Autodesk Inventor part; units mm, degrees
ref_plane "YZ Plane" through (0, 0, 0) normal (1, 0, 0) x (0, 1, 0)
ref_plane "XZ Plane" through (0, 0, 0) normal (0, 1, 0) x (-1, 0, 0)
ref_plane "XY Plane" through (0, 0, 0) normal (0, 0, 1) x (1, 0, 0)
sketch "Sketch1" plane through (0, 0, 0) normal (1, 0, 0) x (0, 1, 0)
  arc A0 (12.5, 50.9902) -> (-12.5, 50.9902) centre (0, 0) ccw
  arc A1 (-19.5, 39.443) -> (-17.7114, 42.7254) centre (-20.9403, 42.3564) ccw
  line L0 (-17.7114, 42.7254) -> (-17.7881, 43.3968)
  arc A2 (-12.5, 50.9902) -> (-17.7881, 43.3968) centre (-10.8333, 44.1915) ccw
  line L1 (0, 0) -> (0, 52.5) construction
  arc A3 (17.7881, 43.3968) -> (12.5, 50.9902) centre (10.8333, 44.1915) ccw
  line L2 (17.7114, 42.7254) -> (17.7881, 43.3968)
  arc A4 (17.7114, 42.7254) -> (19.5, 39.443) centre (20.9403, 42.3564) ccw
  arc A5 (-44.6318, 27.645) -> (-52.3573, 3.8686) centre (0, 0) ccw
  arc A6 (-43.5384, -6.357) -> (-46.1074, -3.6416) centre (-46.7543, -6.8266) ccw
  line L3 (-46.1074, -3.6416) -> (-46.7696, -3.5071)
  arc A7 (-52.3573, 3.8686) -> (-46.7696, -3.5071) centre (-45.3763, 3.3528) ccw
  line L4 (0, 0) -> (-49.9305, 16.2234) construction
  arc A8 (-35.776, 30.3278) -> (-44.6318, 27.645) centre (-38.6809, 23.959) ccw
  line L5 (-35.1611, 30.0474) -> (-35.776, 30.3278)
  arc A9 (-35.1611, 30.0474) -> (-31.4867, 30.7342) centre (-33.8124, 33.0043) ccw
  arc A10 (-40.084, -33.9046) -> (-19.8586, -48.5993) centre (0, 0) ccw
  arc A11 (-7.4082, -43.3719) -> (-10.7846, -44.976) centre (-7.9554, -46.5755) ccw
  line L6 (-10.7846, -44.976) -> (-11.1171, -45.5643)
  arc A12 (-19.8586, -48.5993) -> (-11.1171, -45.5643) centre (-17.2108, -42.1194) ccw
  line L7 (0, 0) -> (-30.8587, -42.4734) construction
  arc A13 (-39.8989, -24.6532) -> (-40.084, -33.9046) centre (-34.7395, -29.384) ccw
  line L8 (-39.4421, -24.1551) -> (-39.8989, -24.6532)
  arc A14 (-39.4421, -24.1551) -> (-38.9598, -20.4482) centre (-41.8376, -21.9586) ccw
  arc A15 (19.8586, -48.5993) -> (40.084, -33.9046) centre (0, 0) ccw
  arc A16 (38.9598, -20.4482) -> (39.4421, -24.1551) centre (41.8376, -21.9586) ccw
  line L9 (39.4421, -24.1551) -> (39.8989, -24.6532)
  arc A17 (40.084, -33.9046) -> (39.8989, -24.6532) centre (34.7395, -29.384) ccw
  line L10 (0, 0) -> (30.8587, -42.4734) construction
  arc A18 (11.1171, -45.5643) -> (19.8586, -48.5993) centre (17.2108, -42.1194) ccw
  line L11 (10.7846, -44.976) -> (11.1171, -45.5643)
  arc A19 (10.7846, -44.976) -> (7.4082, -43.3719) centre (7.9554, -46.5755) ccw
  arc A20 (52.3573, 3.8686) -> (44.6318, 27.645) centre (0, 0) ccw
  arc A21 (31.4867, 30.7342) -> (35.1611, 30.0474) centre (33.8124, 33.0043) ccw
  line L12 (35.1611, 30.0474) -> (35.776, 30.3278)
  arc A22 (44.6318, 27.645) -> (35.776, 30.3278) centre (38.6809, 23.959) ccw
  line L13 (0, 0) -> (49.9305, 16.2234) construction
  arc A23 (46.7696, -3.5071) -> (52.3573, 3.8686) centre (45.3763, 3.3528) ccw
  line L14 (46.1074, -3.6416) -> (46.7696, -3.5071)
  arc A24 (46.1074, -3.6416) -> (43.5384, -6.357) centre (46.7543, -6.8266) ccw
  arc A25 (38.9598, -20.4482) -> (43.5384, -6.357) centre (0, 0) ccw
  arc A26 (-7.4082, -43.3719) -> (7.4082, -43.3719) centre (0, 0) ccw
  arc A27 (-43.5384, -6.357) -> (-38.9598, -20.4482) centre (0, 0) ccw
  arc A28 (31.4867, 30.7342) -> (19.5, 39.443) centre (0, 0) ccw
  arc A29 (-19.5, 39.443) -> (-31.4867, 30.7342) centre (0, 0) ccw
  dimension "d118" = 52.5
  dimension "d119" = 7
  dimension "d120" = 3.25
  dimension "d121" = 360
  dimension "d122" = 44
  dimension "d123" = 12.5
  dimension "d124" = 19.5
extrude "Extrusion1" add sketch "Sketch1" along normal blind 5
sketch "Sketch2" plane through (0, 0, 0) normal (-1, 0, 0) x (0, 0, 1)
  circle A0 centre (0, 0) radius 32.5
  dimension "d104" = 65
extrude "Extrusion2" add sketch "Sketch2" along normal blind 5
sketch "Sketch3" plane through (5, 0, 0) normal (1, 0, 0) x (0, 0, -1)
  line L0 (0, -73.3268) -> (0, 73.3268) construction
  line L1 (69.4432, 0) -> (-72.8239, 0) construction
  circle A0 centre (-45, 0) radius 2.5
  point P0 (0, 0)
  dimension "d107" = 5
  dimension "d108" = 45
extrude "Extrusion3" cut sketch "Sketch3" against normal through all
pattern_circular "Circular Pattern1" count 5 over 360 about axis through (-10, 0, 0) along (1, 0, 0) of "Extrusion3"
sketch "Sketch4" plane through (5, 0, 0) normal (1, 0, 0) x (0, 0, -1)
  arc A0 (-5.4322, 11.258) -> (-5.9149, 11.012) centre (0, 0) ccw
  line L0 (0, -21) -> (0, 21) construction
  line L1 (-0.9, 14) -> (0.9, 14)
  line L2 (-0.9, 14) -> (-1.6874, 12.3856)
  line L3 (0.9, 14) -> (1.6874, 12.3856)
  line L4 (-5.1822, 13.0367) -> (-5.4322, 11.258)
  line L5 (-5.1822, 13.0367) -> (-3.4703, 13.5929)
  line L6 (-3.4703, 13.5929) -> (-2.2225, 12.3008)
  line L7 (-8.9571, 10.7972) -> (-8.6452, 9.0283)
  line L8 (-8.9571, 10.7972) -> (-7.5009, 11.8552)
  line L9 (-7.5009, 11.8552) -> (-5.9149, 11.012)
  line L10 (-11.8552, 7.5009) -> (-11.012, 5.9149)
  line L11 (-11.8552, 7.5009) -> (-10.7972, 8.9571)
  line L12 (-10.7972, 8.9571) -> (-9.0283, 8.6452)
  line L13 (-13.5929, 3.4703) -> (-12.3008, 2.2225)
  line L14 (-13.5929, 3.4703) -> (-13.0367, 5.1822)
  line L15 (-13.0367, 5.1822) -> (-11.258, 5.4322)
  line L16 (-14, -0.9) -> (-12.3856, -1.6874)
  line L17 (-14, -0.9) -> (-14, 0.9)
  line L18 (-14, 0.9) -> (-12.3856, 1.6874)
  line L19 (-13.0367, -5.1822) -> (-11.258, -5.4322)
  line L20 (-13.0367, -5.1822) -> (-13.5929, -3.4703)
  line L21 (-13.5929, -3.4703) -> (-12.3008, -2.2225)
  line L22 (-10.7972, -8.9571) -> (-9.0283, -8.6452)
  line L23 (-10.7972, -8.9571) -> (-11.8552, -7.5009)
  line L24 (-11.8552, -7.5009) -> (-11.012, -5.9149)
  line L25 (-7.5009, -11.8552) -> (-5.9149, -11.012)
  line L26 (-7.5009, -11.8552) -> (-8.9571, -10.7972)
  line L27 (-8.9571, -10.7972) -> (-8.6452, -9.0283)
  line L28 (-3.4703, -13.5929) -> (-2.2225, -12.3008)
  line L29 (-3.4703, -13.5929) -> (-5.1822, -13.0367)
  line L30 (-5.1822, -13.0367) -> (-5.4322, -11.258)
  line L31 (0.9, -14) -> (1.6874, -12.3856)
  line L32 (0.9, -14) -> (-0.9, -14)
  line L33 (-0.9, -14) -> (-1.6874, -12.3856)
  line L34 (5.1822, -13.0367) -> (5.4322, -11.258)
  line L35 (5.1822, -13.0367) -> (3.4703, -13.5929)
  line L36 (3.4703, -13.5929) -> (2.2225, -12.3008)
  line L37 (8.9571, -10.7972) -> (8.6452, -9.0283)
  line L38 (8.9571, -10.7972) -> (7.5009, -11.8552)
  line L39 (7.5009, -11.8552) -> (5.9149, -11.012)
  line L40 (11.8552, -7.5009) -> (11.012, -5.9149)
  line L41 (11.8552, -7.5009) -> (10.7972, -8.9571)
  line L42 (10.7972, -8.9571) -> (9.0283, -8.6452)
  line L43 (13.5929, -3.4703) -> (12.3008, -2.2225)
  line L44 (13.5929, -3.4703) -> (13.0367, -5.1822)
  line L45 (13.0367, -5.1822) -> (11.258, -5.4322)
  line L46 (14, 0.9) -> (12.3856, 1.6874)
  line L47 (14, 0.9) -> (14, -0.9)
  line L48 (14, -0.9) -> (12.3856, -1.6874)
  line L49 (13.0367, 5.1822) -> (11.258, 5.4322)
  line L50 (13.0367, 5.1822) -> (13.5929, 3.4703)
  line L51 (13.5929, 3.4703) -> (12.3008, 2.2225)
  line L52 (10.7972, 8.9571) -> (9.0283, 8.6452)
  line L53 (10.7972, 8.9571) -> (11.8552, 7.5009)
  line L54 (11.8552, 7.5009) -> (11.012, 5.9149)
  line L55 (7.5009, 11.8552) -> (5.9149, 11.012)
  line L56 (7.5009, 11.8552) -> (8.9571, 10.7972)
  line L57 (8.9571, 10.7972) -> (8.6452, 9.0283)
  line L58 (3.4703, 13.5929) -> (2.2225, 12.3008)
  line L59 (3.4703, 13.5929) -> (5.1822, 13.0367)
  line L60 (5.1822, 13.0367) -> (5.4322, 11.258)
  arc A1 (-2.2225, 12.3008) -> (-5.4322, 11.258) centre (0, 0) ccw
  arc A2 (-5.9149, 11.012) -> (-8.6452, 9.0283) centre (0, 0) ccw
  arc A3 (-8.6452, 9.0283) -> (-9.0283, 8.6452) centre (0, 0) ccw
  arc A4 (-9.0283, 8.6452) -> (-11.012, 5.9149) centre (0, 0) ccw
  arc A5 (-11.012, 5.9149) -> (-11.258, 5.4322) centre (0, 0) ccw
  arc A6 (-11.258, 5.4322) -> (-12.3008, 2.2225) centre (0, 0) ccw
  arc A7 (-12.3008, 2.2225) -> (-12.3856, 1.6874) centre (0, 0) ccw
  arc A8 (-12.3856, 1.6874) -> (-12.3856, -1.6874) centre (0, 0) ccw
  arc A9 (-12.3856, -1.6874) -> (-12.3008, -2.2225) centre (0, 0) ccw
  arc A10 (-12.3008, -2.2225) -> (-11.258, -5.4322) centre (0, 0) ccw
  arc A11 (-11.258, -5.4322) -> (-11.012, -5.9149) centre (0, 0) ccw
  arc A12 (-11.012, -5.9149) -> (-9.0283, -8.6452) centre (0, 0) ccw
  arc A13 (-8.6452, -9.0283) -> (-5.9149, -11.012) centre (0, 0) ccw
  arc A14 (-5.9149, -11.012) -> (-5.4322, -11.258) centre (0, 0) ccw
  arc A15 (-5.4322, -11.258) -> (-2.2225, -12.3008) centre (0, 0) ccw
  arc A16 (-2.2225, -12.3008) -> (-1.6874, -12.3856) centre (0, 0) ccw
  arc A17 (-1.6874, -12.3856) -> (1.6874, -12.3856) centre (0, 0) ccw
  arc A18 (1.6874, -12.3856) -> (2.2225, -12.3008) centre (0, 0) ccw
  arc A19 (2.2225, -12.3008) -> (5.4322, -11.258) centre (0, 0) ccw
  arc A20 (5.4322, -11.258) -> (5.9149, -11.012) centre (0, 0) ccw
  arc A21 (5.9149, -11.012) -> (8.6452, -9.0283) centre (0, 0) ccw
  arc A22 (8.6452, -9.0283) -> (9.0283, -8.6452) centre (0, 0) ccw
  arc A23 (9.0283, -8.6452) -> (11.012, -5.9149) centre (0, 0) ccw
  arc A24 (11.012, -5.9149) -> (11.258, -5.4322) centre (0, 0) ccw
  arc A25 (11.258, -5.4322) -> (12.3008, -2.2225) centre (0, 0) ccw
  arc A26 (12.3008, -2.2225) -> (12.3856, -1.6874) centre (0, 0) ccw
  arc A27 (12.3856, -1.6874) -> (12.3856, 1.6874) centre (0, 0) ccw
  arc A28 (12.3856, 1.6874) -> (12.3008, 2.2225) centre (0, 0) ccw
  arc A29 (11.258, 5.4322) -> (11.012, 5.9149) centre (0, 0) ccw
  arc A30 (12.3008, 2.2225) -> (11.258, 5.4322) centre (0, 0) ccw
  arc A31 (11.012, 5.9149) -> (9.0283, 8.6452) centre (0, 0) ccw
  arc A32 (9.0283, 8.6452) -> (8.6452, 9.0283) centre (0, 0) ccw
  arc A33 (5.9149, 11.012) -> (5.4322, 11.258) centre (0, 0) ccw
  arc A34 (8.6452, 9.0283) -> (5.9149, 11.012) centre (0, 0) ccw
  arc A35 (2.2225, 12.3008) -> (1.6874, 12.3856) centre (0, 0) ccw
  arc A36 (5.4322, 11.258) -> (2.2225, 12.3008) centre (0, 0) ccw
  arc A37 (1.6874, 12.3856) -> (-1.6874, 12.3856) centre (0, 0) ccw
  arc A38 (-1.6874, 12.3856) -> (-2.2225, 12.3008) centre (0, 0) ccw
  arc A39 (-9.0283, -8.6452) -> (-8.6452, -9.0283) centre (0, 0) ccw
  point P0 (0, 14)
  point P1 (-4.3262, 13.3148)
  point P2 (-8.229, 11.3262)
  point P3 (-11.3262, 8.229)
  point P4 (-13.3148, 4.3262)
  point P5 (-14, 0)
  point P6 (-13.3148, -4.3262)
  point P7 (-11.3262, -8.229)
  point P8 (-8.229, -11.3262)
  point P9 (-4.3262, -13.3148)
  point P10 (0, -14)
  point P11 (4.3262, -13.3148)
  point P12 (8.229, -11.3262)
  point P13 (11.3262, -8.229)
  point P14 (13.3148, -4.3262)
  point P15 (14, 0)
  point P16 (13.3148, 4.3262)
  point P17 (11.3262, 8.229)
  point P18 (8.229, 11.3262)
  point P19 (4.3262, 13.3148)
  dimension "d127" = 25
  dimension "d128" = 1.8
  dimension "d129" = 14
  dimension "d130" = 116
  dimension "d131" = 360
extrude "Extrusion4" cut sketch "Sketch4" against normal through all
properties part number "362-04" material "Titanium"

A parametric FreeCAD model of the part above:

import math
import FreeCAD as App
import Part
import Sketcher
Q = App.Units.Quantity

doc = App.newDocument("Part")
params = doc.addObject("Spreadsheet::Sheet", "Params")
for row, (alias, value) in enumerate([
    ("sketch1_radius", "7 mm"),
    ("sketch1_radius2", "44 mm"),
    ("sketch1_radius3", "52.5 mm"),
    ("sketch1_radius4", "3.25 mm"),
    ("pad1_length", "5 mm"),
    ("sketch2_diameter", "65 mm"),
    ("pad2_length", "5 mm"),
    ("sketch3_diameter", "5 mm"),
    ("sketch4_radius", "12.5 mm"),
    ("sketch4_width", "1.8 mm"),
    ("sketch4_length", "1.8 mm"),
], start=1):
    params.set(f"A{row}", alias)
    params.set(f"B{row}", "=" + value)
    params.setAlias(f"B{row}", alias)

body = doc.addObject("PartDesign::Body", "Body")

# Sketch on YZ plane
sketch1 = body.newObject("Sketcher::SketchObject", "Sketch")
sketch1.AttachmentSupport = (doc.getObject("YZ_Plane"), [""])
sketch1.MapMode = "FlatFace"
sketch1.addGeometry([
    Part.ArcOfCircle(Part.Circle(App.Vector(10.8333, 44.1915, 0), App.Vector(0, 0, 1), 7.000057), math.radians(-6.51871), math.radians(76.225602)),  # 0
    Part.ArcOfCircle(Part.Circle(App.Vector(0, 0, 0), App.Vector(0, 0, 1), 52.500005), math.radians(76.225854), math.radians(103.774146)),  # 1
    Part.ArcOfCircle(Part.Circle(App.Vector(-10.8333, 44.1915, 0), App.Vector(0, 0, 1), 7.000015), math.radians(103.774398), math.radians(186.51871)),  # 2
    Part.LineSegment(App.Vector(-17.7881, 43.3968, 0), App.Vector(-17.7114, 42.7254, 0)),  # 3
    Part.ArcOfCircle(Part.Circle(App.Vector(-20.9403, 42.3564, 0), App.Vector(0, 0, 1), 3.249979), math.radians(-63.693551), math.radians(6.519501)),  # 4
    Part.ArcOfCircle(Part.Circle(App.Vector(0.000636, -0.001052, 0), App.Vector(0, 0, 1), 44.001228), math.radians(116.307204), math.radians(135.6925)),  # 5
    Part.ArcOfCircle(Part.Circle(App.Vector(-33.8124, 33.0043, 0), App.Vector(0, 0, 1), 3.249961), math.radians(-114.518658), math.radians(-44.306869)),  # 6
    Part.LineSegment(App.Vector(-35.1611, 30.0474, 0), App.Vector(-35.776, 30.3278, 0)),  # 7
    Part.ArcOfCircle(Part.Circle(App.Vector(-38.6809, 23.959, 0), App.Vector(0, 0, 1), 7.000004), math.radians(65.481598), math.radians(148.225839)),  # 8
    Part.ArcOfCircle(Part.Circle(App.Vector(0.001412, -0.000655, 0), App.Vector(0, 0, 1), 52.501484), math.radians(148.226071), math.radians(175.773583)),  # 9
    Part.ArcOfCircle(Part.Circle(App.Vector(-45.3763, 3.3528, 0), App.Vector(0, 0, 1), 7.000029), math.radians(175.774307), math.radians(258.518949)),  # 10
    Part.LineSegment(App.Vector(-46.7696, -3.5071, 0), App.Vector(-46.1074, -3.6416, 0)),  # 11
    Part.ArcOfCircle(Part.Circle(App.Vector(-46.7543, -6.8266, 0), App.Vector(0, 0, 1), 3.250006), math.radians(8.307866), math.radians(78.518926)),  # 12
    Part.ArcOfCircle(Part.Circle(App.Vector(-0.003432, -0.000802, 0), App.Vector(0, 0, 1), 43.99653), math.radians(-171.693385), math.radians(-152.305941)),  # 13
    Part.ArcOfCircle(Part.Circle(App.Vector(-41.8376, -21.9586, 0), App.Vector(0, 0, 1), 3.250082), math.radians(-42.518569), math.radians(27.692527)),  # 14
    Part.LineSegment(App.Vector(-39.4421, -24.1551, 0), App.Vector(-39.8989, -24.6532, 0)),  # 15
    Part.ArcOfCircle(Part.Circle(App.Vector(-34.7395, -29.384, 0), App.Vector(0, 0, 1), 6.999991), math.radians(137.481407), math.radians(220.225928)),  # 16
    Part.ArcOfCircle(Part.Circle(App.Vector(0.000794, 0.000855, 0), App.Vector(0, 0, 1), 52.501149), math.radians(-139.774012), math.radians(-112.22631)),  # 17
    Part.ArcOfCircle(Part.Circle(App.Vector(-17.2108, -42.1194, 0), App.Vector(0, 0, 1), 6.999996), math.radians(-112.22578), math.radians(-29.480412)),  # 18
    Part.LineSegment(App.Vector(-11.1171, -45.5643, 0), App.Vector(-10.7846, -44.976, 0)),  # 19
    Part.ArcOfCircle(Part.Circle(App.Vector(-7.9554, -46.5755, 0), App.Vector(0, 0, 1), 3.249997), math.radians(80.306975), math.radians(150.518172)),  # 20
    Part.ArcOfCircle(Part.Circle(App.Vector(0, 0, 0), App.Vector(0, 0, 1), 44.000036), math.radians(-99.692947), math.radians(-80.307053)),  # 21
    Part.ArcOfCircle(Part.Circle(App.Vector(7.9554, -46.5755, 0), App.Vector(0, 0, 1), 3.250042), math.radians(29.481828), math.radians(99.693025)),  # 22
    Part.LineSegment(App.Vector(10.7846, -44.976, 0), App.Vector(11.1171, -45.5643, 0)),  # 23
    Part.ArcOfCircle(Part.Circle(App.Vector(17.2108, -42.1194, 0), App.Vector(0, 0, 1), 7.000037), math.radians(-150.519588), math.radians(-67.77422)),  # 24
    Part.ArcOfCircle(Part.Circle(App.Vector(0.000568, -0.00102, 0), App.Vector(0, 0, 1), 52.498898), math.radians(-67.774292), math.radians(-40.225386)),  # 25
    Part.ArcOfCircle(Part.Circle(App.Vector(34.7395, -29.384, 0), App.Vector(0, 0, 1), 6.999965), math.radians(-40.225928), math.radians(42.518593)),  # 26
    Part.LineSegment(App.Vector(39.8989, -24.6532, 0), App.Vector(39.4421, -24.1551, 0)),  # 27
    Part.ArcOfCircle(Part.Circle(App.Vector(41.8376, -21.9586, 0), App.Vector(0, 0, 1), 3.250083), math.radians(152.307473), math.radians(222.518569)),  # 28
    Part.ArcOfCircle(Part.Circle(App.Vector(-0.003248, 0.001369, 0), App.Vector(0, 0, 1), 44.003454), math.radians(-27.692519), math.radians(-8.308155)),  # 29
    Part.ArcOfCircle(Part.Circle(App.Vector(46.7543, -6.8266, 0), App.Vector(0, 0, 1), 3.250031), math.radians(101.481074), math.radians(171.692134)),  # 30
    Part.LineSegment(App.Vector(46.1074, -3.6416, 0), App.Vector(46.7696, -3.5071, 0)),  # 31
    Part.ArcOfCircle(Part.Circle(App.Vector(45.3763, 3.3528, 0), App.Vector(0, 0, 1), 6.999965), math.radians(-78.518949), math.radians(4.225693)),  # 32
    Part.ArcOfCircle(Part.Circle(App.Vector(0.001527, 0.0003, 0), App.Vector(0, 0, 1), 52.498483), math.radians(4.225614), math.radians(31.774732)),  # 33
    Part.ArcOfCircle(Part.Circle(App.Vector(38.6809, 23.959, 0), App.Vector(0, 0, 1), 6.999986), math.radians(31.774161), math.radians(114.518402)),  # 34
    Part.LineSegment(App.Vector(35.776, 30.3278, 0), App.Vector(35.1611, 30.0474, 0)),  # 35
    Part.ArcOfCircle(Part.Circle(App.Vector(33.8124, 33.0043, 0), App.Vector(0, 0, 1), 3.249959), math.radians(-135.693131), math.radians(-65.481342)),  # 36
    Part.ArcOfCircle(Part.Circle(App.Vector(0.000804, 0.00093, 0), App.Vector(0, 0, 1), 43.998813), math.radians(44.306963), math.radians(63.693333)),  # 37
    Part.ArcOfCircle(Part.Circle(App.Vector(20.9403, 42.3564, 0), App.Vector(0, 0, 1), 3.249916), math.radians(173.480499), math.radians(243.693551)),  # 38
    Part.LineSegment(App.Vector(17.7114, 42.7254, 0), App.Vector(17.7881, 43.3968, 0)),  # 39
], False)
sketch1.addConstraint([
    Sketcher.Constraint("Tangent", 0, 2, 1, 1),
    Sketcher.Constraint("Tangent", 1, 2, 2, 1),
    Sketcher.Constraint("Tangent", 2, 2, 3, 1),
    Sketcher.Constraint("Tangent", 3, 2, 4, 2),
    Sketcher.Constraint("Tangent", 4, 1, 5, 1),
    Sketcher.Constraint("Tangent", 5, 2, 6, 2),
    Sketcher.Constraint("Tangent", 6, 1, 7, 1),
    Sketcher.Constraint("Tangent", 7, 2, 8, 1),
    Sketcher.Constraint("Tangent", 8, 2, 9, 1),
    Sketcher.Constraint("Tangent", 9, 2, 10, 1),
    Sketcher.Constraint("Tangent", 10, 2, 11, 1),
    Sketcher.Constraint("Tangent", 11, 2, 12, 2),
    Sketcher.Constraint("Tangent", 12, 1, 13, 1),
    Sketcher.Constraint("Tangent", 13, 2, 14, 2),
    Sketcher.Constraint("Tangent", 14, 1, 15, 1),
    Sketcher.Constraint("Tangent", 15, 2, 16, 1),
    Sketcher.Constraint("Tangent", 16, 2, 17, 1),
    Sketcher.Constraint("Tangent", 17, 2, 18, 1),
    Sketcher.Constraint("Tangent", 18, 2, 19, 1),
    Sketcher.Constraint("Tangent", 19, 2, 20, 2),
    Sketcher.Constraint("Tangent", 20, 1, 21, 1),
    Sketcher.Constraint("Tangent", 21, 2, 22, 2),
    Sketcher.Constraint("Tangent", 22, 1, 23, 1),
    Sketcher.Constraint("Tangent", 23, 2, 24, 1),
    Sketcher.Constraint("Tangent", 24, 2, 25, 1),
    Sketcher.Constraint("Tangent", 25, 2, 26, 1),
    Sketcher.Constraint("Tangent", 26, 2, 27, 1),
    Sketcher.Constraint("Tangent", 27, 2, 28, 2),
    Sketcher.Constraint("Tangent", 28, 1, 29, 1),
    Sketcher.Constraint("Tangent", 29, 2, 30, 2),
    Sketcher.Constraint("Tangent", 30, 1, 31, 1),
    Sketcher.Constraint("Tangent", 31, 2, 32, 1),
    Sketcher.Constraint("Tangent", 32, 2, 33, 1),
    Sketcher.Constraint("Tangent", 33, 2, 34, 1),
    Sketcher.Constraint("Tangent", 34, 2, 35, 1),
    Sketcher.Constraint("Tangent", 35, 2, 36, 2),
    Sketcher.Constraint("Tangent", 36, 1, 37, 1),
    Sketcher.Constraint("Tangent", 37, 2, 38, 2),
    Sketcher.Constraint("Tangent", 38, 1, 39, 1),
    Sketcher.Constraint("Tangent", 39, 2, 0, 1),
    Sketcher.Constraint("Coincident", 1, 3, -1, 1),
    Sketcher.Constraint("Coincident", 21, 3, -1, 1),
    Sketcher.Constraint("Coincident", 25, 3, 5, 3),
    Sketcher.Constraint("Coincident", 37, 3, 17, 3),
    Sketcher.Constraint("Equal", 0, 2),
    Sketcher.Constraint("Equal", 4, 6),
    Sketcher.Constraint("Equal", 2, 8),
    Sketcher.Constraint("Equal", 8, 10),
    Sketcher.Constraint("Equal", 6, 12),
    Sketcher.Constraint("Equal", 12, 14),
    Sketcher.Constraint("Equal", 10, 16),
    Sketcher.Constraint("Equal", 16, 18),
    Sketcher.Constraint("Equal", 14, 20),
    Sketcher.Constraint("Equal", 20, 22),
    Sketcher.Constraint("Equal", 18, 24),
    Sketcher.Constraint("Equal", 24, 26),
    Sketcher.Constraint("Equal", 22, 28),
    Sketcher.Constraint("Equal", 28, 30),
    Sketcher.Constraint("Equal", 26, 32),
    Sketcher.Constraint("Equal", 32, 34),
    Sketcher.Constraint("Equal", 30, 36),
    Sketcher.Constraint("Equal", 36, 38),
    Sketcher.Constraint("Symmetric", 18, 3, 24, 3, -2),
    Sketcher.Constraint("Symmetric", 16, 3, 26, 3, -2),
    Sketcher.Constraint("Symmetric", 14, 3, 28, 3, -2),
    Sketcher.Constraint("Symmetric", 12, 3, 30, 3, -2),
    Sketcher.Constraint("Symmetric", 10, 3, 32, 3, -2),
    Sketcher.Constraint("Symmetric", 8, 3, 34, 3, -2),
    Sketcher.Constraint("Symmetric", 6, 3, 36, 3, -2),
    Sketcher.Constraint("Symmetric", 3, 2, 38, 1, -2),
    Sketcher.Constraint("Symmetric", 5, 3, 17, 3, -1),
    Sketcher.Constraint("Symmetric", 9, 3, 33, 3, -1),
    Sketcher.Constraint("Horizontal", 9, 3, 13, 3),
    Sketcher.Constraint("Horizontal", 20, 3, 22, 3),
    Sketcher.Constraint("Vertical", 13, 3, 29, 3),
    Sketcher.Constraint("Equal", 3, 7),
    Sketcher.Constraint("Equal", 7, 11),
    Sketcher.Constraint("Equal", 11, 15),
    Sketcher.Constraint("Equal", 15, 19),
    Sketcher.Constraint("Radius", 0, 7.0),
    Sketcher.Constraint("Radius", 21, 44.0),
    Sketcher.Constraint("Radius", 1, 52.5),
    Sketcher.Constraint("Radius", 4, 3.25),
    Sketcher.Constraint("DistanceX", -1, 1, 0, 2, 12.5),
    Sketcher.Constraint("DistanceX", 4, 1, -1, 1, 19.5),
    Sketcher.Constraint("Radius", 25, 52.499),
    Sketcher.Constraint("Radius", 5, 44.0012),
    Sketcher.Constraint("Radius", 9, 52.5015),
    Sketcher.Constraint("Radius", 13, 43.9965),
    Sketcher.Constraint("Radius", 17, 52.5011),
    Sketcher.Constraint("Radius", 29, 44.0035),
    Sketcher.Constraint("Radius", 33, 52.4985),
    Sketcher.Constraint("DistanceX", 8, 3, -1, 1, 38.681),
    Sketcher.Constraint("DistanceY", 16, 3, -1, 1, 29.384),
    Sketcher.Constraint("DistanceY", 12, 1, -1, 1, 6.357),
    Sketcher.Constraint("DistanceY", 19, 2, -1, 1, 44.976),
])
sketch1.setExpression("Constraints[79]", "Params.sketch1_radius")
sketch1.setExpression("Constraints[80]", "Params.sketch1_radius2")
sketch1.setExpression("Constraints[81]", "Params.sketch1_radius3")
sketch1.setExpression("Constraints[82]", "Params.sketch1_radius4")
pad1 = body.newObject("PartDesign::Pad", "Pad")
pad1.Profile = sketch1
pad1.setExpression("Length", "Params.pad1_length")

# Sketch on YZ plane
sketch2 = body.newObject("Sketcher::SketchObject", "Sketch001")
sketch2.AttachmentSupport = (doc.getObject("YZ_Plane"), [""])
sketch2.MapMode = "FlatFace"
sketch2.addGeometry(Part.Circle(App.Vector(0, 0, 0), App.Vector(0, 0, 1), 32), False)
sketch2.addConstraint([
    Sketcher.Constraint("Coincident", 0, 3, -1, 1),
    Sketcher.Constraint("Diameter", 0, 65.0),
])
sketch2.setExpression("Constraints[1]", "Params.sketch2_diameter")
pad2 = body.newObject("PartDesign::Pad", "Pad001")
pad2.Profile = sketch2
pad2.setExpression("Length", "Params.pad2_length")
pad2.Reversed = True

# Sketch on YZ plane
sketch3 = body.newObject("Sketcher::SketchObject", "Sketch002")
sketch3.AttachmentSupport = (doc.getObject("YZ_Plane"), [""])
sketch3.MapMode = "FlatFace"
sketch3.AttachmentOffset = App.Placement(App.Vector(0, 0, 5), App.Rotation())
sketch3.addGeometry(Part.Circle(App.Vector(0, 45, 0), App.Vector(0, 0, 1), 2.5), False)
sketch3.addConstraint([
    Sketcher.Constraint("PointOnObject", 0, 3, -2),
    Sketcher.Constraint("Diameter", 0, 5.0),
    Sketcher.Constraint("DistanceY", -1, 1, 0, 3, 45.0),
])
sketch3.setExpression("Constraints[1]", "Params.sketch3_diameter")
pocket1 = body.newObject("PartDesign::Pocket", "Pocket")
pocket1.Profile = sketch3
pocket1.Type = "ThroughAll"
doc.recompute()

polarpattern = body.newObject("PartDesign::PolarPattern", "PolarPattern")
polarpattern.Originals = [pocket1]
polarpattern.Axis = (doc.getObject("X_Axis"), [""])
polarpattern.Angle = 360
polarpattern.Occurrences = 5
body.Tip = polarpattern

# Sketch on YZ plane
sketch4 = body.newObject("Sketcher::SketchObject", "Sketch003")
sketch4.AttachmentSupport = (doc.getObject("YZ_Plane"), [""])
sketch4.MapMode = "FlatFace"
sketch4.AttachmentOffset = App.Placement(App.Vector(0, 0, 5), App.Rotation())
sketch4.addGeometry([
    Part.ArcOfCircle(Part.Circle(App.Vector(0.1, 0, 0), App.Vector(0, 0, 1), 12.4), math.radians(7.75), math.radians(10.26)),  # 0
    Part.LineSegment(App.Vector(12.3, 2.2, 0), App.Vector(13.6, 3.5, 0)),  # 1
    Part.LineSegment(App.Vector(13.6, 3.5, 0), App.Vector(13, 5.2, 0)),  # 2
    Part.LineSegment(App.Vector(13, 5.2, 0), App.Vector(11.3, 5.4, 0)),  # 3
    Part.ArcOfCircle(Part.Circle(App.Vector(0.1, 0, 0), App.Vector(0, 0, 1), 12.4), math.radians(25.75), math.radians(28.26)),  # 4
    Part.LineSegment(App.Vector(11, 5.9, 0), App.Vector(11.9, 7.5, 0)),  # 5
    Part.LineSegment(App.Vector(11.9, 7.5, 0), App.Vector(10.8, 9, 0)),  # 6
    Part.LineSegment(App.Vector(10.8, 9, 0), App.Vector(9, 8.6, 0)),  # 7
    Part.ArcOfCircle(Part.Circle(App.Vector(0, 0, 0), App.Vector(0, 0, 1), 12.5), math.radians(43.76), math.radians(46.24)),  # 8
    Part.LineSegment(App.Vector(8.6, 9, 0), App.Vector(9, 10.8, 0)),  # 9
    Part.LineSegment(App.Vector(9, 10.8, 0), App.Vector(7.5, 11.9, 0)),  # 10
    Part.LineSegment(App.Vector(7.5, 11.9, 0), App.Vector(5.9, 11, 0)),  # 11
    Part.ArcOfCircle(Part.Circle(App.Vector(0, -0.1, 0), App.Vector(0, 0, 1), 12.6), math.radians(61.76), math.radians(64.23)),  # 12
    Part.LineSegment(App.Vector(5.4, 11.3, 0), App.Vector(5.2, 13, 0)),  # 13
    Part.LineSegment(App.Vector(5.2, 13, 0), App.Vector(3.5, 13.6, 0)),  # 14
    Part.LineSegment(App.Vector(3.5, 13.6, 0), App.Vector(2.2, 12.3, 0)),  # 15
    Part.ArcOfCircle(Part.Circle(App.Vector(0, -0.1, 0), App.Vector(0, 0, 1), 12.6), math.radians(79.76), math.radians(82.23)),  # 16
    Part.LineSegment(App.Vector(1.7, 12.4, 0), App.Vector(0.9, 14, 0)),  # 17
    Part.LineSegment(App.Vector(0.9, 14, 0), App.Vector(-0.9, 14, 0)),  # 18
    Part.LineSegment(App.Vector(-0.9, 14, 0), App.Vector(-1.7, 12.4, 0)),  # 19
    Part.ArcOfCircle(Part.Circle(App.Vector(0, 0.1, 0), App.Vector(0, 0, 1), 12.4), math.radians(97.75), math.radians(100.26)),  # 20
    Part.LineSegment(App.Vector(-2.2, 12.3, 0), App.Vector(-3.5, 13.6, 0)),  # 21
    Part.LineSegment(App.Vector(-3.5, 13.6, 0), App.Vector(-5.2, 13, 0)),  # 22
    Part.LineSegment(App.Vector(-5.2, 13, 0), App.Vector(-5.4, 11.3, 0)),  # 23
    Part.ArcOfCircle(Part.Circle(App.Vector(0, 0.1, 0), App.Vector(0, 0, 1), 12.4), math.radians(115.75), math.radians(118.26)),  # 24
    Part.LineSegment(App.Vector(-5.9, 11, 0), App.Vector(-7.5, 11.9, 0)),  # 25
    Part.LineSegment(App.Vector(-7.5, 11.9, 0), App.Vector(-9, 10.8, 0)),  # 26
    Part.LineSegment(App.Vector(-9, 10.8, 0), App.Vector(-8.6, 9, 0)),  # 27
    Part.ArcOfCircle(Part.Circle(App.Vector(0, 0, 0), App.Vector(0, 0, 1), 12.5), math.radians(133.76), math.radians(136.24)),  # 28
    Part.LineSegment(App.Vector(-9, 8.6, 0), App.Vector(-10.8, 9, 0)),  # 29
    Part.LineSegment(App.Vector(-10.8, 9, 0), App.Vector(-11.9, 7.5, 0)),  # 30
    Part.LineSegment(App.Vector(-11.9, 7.5, 0), App.Vector(-11, 5.9, 0)),  # 31
    Part.ArcOfCircle(Part.Circle(App.Vector(0.1, 0, 0), App.Vector(0, 0, 1), 12.6), math.radians(151.76), math.radians(154.23)),  # 32
    Part.LineSegment(App.Vector(-11.3, 5.4, 0), App.Vector(-13, 5.2, 0)),  # 33
    Part.LineSegment(App.Vector(-13, 5.2, 0), App.Vector(-13.6, 3.5, 0)),  # 34
    Part.LineSegment(App.Vector(-13.6, 3.5, 0), App.Vector(-12.3, 2.2, 0)),  # 35
    Part.ArcOfCircle(Part.Circle(App.Vector(0.1, 0, 0), App.Vector(0, 0, 1), 12.6), math.radians(169.76), math.radians(172.23)),  # 36
    Part.LineSegment(App.Vector(-12.4, 1.7, 0), App.Vector(-14, 0.9, 0)),  # 37
    Part.LineSegment(App.Vector(-14, 0.9, 0), App.Vector(-14, -0.9, 0)),  # 38
    Part.LineSegment(App.Vector(-14, -0.9, 0), App.Vector(-12.4, -1.7, 0)),  # 39
    Part.ArcOfCircle(Part.Circle(App.Vector(-0.1, 0, 0), App.Vector(0, 0, 1), 12.4), math.radians(-172.25), math.radians(-169.74)),  # 40
    Part.LineSegment(App.Vector(-12.3, -2.2, 0), App.Vector(-13.6, -3.5, 0)),  # 41
    Part.LineSegment(App.Vector(-13.6, -3.5, 0), App.Vector(-13, -5.2, 0)),  # 42
    Part.LineSegment(App.Vector(-13, -5.2, 0), App.Vector(-11.3, -5.4, 0)),  # 43
    Part.ArcOfCircle(Part.Circle(App.Vector(-0.1, 0, 0), App.Vector(0, 0, 1), 12.4), math.radians(-154.25), math.radians(-151.74)),  # 44
    Part.LineSegment(App.Vector(-11, -5.9, 0), App.Vector(-11.9, -7.5, 0)),  # 45
    Part.LineSegment(App.Vector(-11.9, -7.5, 0), App.Vector(-10.8, -9, 0)),  # 46
    Part.LineSegment(App.Vector(-10.8, -9, 0), App.Vector(-9, -8.6, 0)),  # 47
    Part.ArcOfCircle(Part.Circle(App.Vector(0, 0, 0), App.Vector(0, 0, 1), 12.5), math.radians(-136.24), math.radians(-133.76)),  # 48
    Part.LineSegment(App.Vector(-8.6, -9, 0), App.Vector(-9, -10.8, 0)),  # 49
    Part.LineSegment(App.Vector(-9, -10.8, 0), App.Vector(-7.5, -11.9, 0)),  # 50
    Part.LineSegment(App.Vector(-7.5, -11.9, 0), App.Vector(-5.9, -11, 0)),  # 51
    Part.ArcOfCircle(Part.Circle(App.Vector(0, 0.1, 0), App.Vector(0, 0, 1), 12.6), math.radians(-118.24), math.radians(-115.77)),  # 52
    Part.LineSegment(App.Vector(-5.4, -11.3, 0), App.Vector(-5.2, -13, 0)),  # 53
    Part.LineSegment(App.Vector(-5.2, -13, 0), App.Vector(-3.5, -13.6, 0)),  # 54
    Part.LineSegment(App.Vector(-3.5, -13.6, 0), App.Vector(-2.2, -12.3, 0)),  # 55
    Part.ArcOfCircle(Part.Circle(App.Vector(0, 0.1, 0), App.Vector(0, 0, 1), 12.6), math.radians(-100.24), math.radians(-97.77)),  # 56
    Part.LineSegment(App.Vector(-1.7, -12.4, 0), App.Vector(-0.9, -14, 0)),  # 57
    Part.LineSegment(App.Vector(-0.9, -14, 0), App.Vector(0.9, -14, 0)),  # 58
    Part.LineSegment(App.Vector(0.9, -14, 0), App.Vector(1.7, -12.4, 0)),  # 59
    Part.ArcOfCircle(Part.Circle(App.Vector(0, -0.1, 0), App.Vector(0, 0, 1), 12.4), math.radians(-82.25), math.radians(-79.74)),  # 60
    Part.LineSegment(App.Vector(2.2, -12.3, 0), App.Vector(3.5, -13.6, 0)),  # 61
    Part.LineSegment(App.Vector(3.5, -13.6, 0), App.Vector(5.2, -13, 0)),  # 62
    Part.LineSegment(App.Vector(5.2, -13, 0), App.Vector(5.4, -11.3, 0)),  # 63
    Part.ArcOfCircle(Part.Circle(App.Vector(0, -0.1, 0), App.Vector(0, 0, 1), 12.4), math.radians(-64.25), math.radians(-61.74)),  # 64
    Part.LineSegment(App.Vector(5.9, -11, 0), App.Vector(7.5, -11.9, 0)),  # 65
    Part.LineSegment(App.Vector(7.5, -11.9, 0), App.Vector(9, -10.8, 0)),  # 66
    Part.LineSegment(App.Vector(9, -10.8, 0), App.Vector(8.6, -9, 0)),  # 67
    Part.ArcOfCircle(Part.Circle(App.Vector(0, 0, 0), App.Vector(0, 0, 1), 12.5), math.radians(-46.24), math.radians(-43.76)),  # 68
    Part.LineSegment(App.Vector(9, -8.6, 0), App.Vector(10.8, -9, 0)),  # 69
    Part.LineSegment(App.Vector(10.8, -9, 0), App.Vector(11.9, -7.5, 0)),  # 70
    Part.LineSegment(App.Vector(11.9, -7.5, 0), App.Vector(11, -5.9, 0)),  # 71
    Part.ArcOfCircle(Part.Circle(App.Vector(-0.1, 0, 0), App.Vector(0, 0, 1), 12.6), math.radians(-28.24), math.radians(-25.77)),  # 72
    Part.LineSegment(App.Vector(11.3, -5.4, 0), App.Vector(13, -5.2, 0)),  # 73
    Part.LineSegment(App.Vector(13, -5.2, 0), App.Vector(13.6, -3.5, 0)),  # 74
    Part.LineSegment(App.Vector(13.6, -3.5, 0), App.Vector(12.3, -2.2, 0)),  # 75
    Part.ArcOfCircle(Part.Circle(App.Vector(-0.1, 0, 0), App.Vector(0, 0, 1), 12.6), math.radians(-10.24), math.radians(-7.77)),  # 76
    Part.LineSegment(App.Vector(12.4, -1.7, 0), App.Vector(14, -0.9, 0)),  # 77
    Part.LineSegment(App.Vector(14, -0.9, 0), App.Vector(14, 0.9, 0)),  # 78
    Part.LineSegment(App.Vector(14, 0.9, 0), App.Vector(12.4, 1.7, 0)),  # 79
], False)
sketch4.addConstraint([
    Sketcher.Constraint("Coincident", 0, 2, 1, 1),
    Sketcher.Constraint("Coincident", 1, 2, 2, 1),
    Sketcher.Constraint("Coincident", 2, 2, 3, 1),
    Sketcher.Constraint("Coincident", 3, 2, 4, 1),
    Sketcher.Constraint("Coincident", 4, 2, 5, 1),
    Sketcher.Constraint("Coincident", 5, 2, 6, 1),
    Sketcher.Constraint("Coincident", 6, 2, 7, 1),
    Sketcher.Constraint("Coincident", 7, 2, 8, 1),
    Sketcher.Constraint("Coincident", 8, 2, 9, 1),
    Sketcher.Constraint("Coincident", 9, 2, 10, 1),
    Sketcher.Constraint("Coincident", 10, 2, 11, 1),
    Sketcher.Constraint("Coincident", 11, 2, 12, 1),
    Sketcher.Constraint("Coincident", 12, 2, 13, 1),
    Sketcher.Constraint("Coincident", 13, 2, 14, 1),
    Sketcher.Constraint("Coincident", 14, 2, 15, 1),
    Sketcher.Constraint("Coincident", 15, 2, 16, 1),
    Sketcher.Constraint("Coincident", 16, 2, 17, 1),
    Sketcher.Constraint("Coincident", 17, 2, 18, 1),
    Sketcher.Constraint("Coincident", 18, 2, 19, 1),
    Sketcher.Constraint("Coincident", 19, 2, 20, 1),
    Sketcher.Constraint("Coincident", 20, 2, 21, 1),
    Sketcher.Constraint("Coincident", 21, 2, 22, 1),
    Sketcher.Constraint("Coincident", 22, 2, 23, 1),
    Sketcher.Constraint("Coincident", 23, 2, 24, 1),
    Sketcher.Constraint("Coincident", 24, 2, 25, 1),
    Sketcher.Constraint("Coincident", 25, 2, 26, 1),
    Sketcher.Constraint("Coincident", 26, 2, 27, 1),
    Sketcher.Constraint("Coincident", 27, 2, 28, 1),
    Sketcher.Constraint("Coincident", 28, 2, 29, 1),
    Sketcher.Constraint("Coincident", 29, 2, 30, 1),
    Sketcher.Constraint("Coincident", 30, 2, 31, 1),
    Sketcher.Constraint("Coincident", 31, 2, 32, 1),
    Sketcher.Constraint("Coincident", 32, 2, 33, 1),
    Sketcher.Constraint("Coincident", 33, 2, 34, 1),
    Sketcher.Constraint("Coincident", 34, 2, 35, 1),
    Sketcher.Constraint("Coincident", 35, 2, 36, 1),
    Sketcher.Constraint("Coincident", 36, 2, 37, 1),
    Sketcher.Constraint("Coincident", 37, 2, 38, 1),
    Sketcher.Constraint("Coincident", 38, 2, 39, 1),
    Sketcher.Constraint("Coincident", 39, 2, 40, 1),
    Sketcher.Constraint("Coincident", 40, 2, 41, 1),
    Sketcher.Constraint("Coincident", 41, 2, 42, 1),
    Sketcher.Constraint("Coincident", 42, 2, 43, 1),
    Sketcher.Constraint("Coincident", 43, 2, 44, 1),
    Sketcher.Constraint("Coincident", 44, 2, 45, 1),
    Sketcher.Constraint("Coincident", 45, 2, 46, 1),
    Sketcher.Constraint("Coincident", 46, 2, 47, 1),
    Sketcher.Constraint("Coincident", 47, 2, 48, 1),
    Sketcher.Constraint("Coincident", 48, 2, 49, 1),
    Sketcher.Constraint("Coincident", 49, 2, 50, 1),
    Sketcher.Constraint("Coincident", 50, 2, 51, 1),
    Sketcher.Constraint("Coincident", 51, 2, 52, 1),
    Sketcher.Constraint("Coincident", 52, 2, 53, 1),
    Sketcher.Constraint("Coincident", 53, 2, 54, 1),
    Sketcher.Constraint("Coincident", 54, 2, 55, 1),
    Sketcher.Constraint("Coincident", 55, 2, 56, 1),
    Sketcher.Constraint("Coincident", 56, 2, 57, 1),
    Sketcher.Constraint("Coincident", 57, 2, 58, 1),
    Sketcher.Constraint("Coincident", 58, 2, 59, 1),
    Sketcher.Constraint("Coincident", 59, 2, 60, 1),
    Sketcher.Constraint("Coincident", 60, 2, 61, 1),
    Sketcher.Constraint("Coincident", 61, 2, 62, 1),
    Sketcher.Constraint("Coincident", 62, 2, 63, 1),
    Sketcher.Constraint("Coincident", 63, 2, 64, 1),
    Sketcher.Constraint("Coincident", 64, 2, 65, 1),
    Sketcher.Constraint("Coincident", 65, 2, 66, 1),
    Sketcher.Constraint("Coincident", 66, 2, 67, 1),
    Sketcher.Constraint("Coincident", 67, 2, 68, 1),
    Sketcher.Constraint("Coincident", 68, 2, 69, 1),
    Sketcher.Constraint("Coincident", 69, 2, 70, 1),
    Sketcher.Constraint("Coincident", 70, 2, 71, 1),
    Sketcher.Constraint("Coincident", 71, 2, 72, 1),
    Sketcher.Constraint("Coincident", 72, 2, 73, 1),
    Sketcher.Constraint("Coincident", 73, 2, 74, 1),
    Sketcher.Constraint("Coincident", 74, 2, 75, 1),
    Sketcher.Constraint("Coincident", 75, 2, 76, 1),
    Sketcher.Constraint("Coincident", 76, 2, 77, 1),
    Sketcher.Constraint("Coincident", 77, 2, 78, 1),
    Sketcher.Constraint("Coincident", 78, 2, 79, 1),
    Sketcher.Constraint("Coincident", 79, 2, 0, 1),
    Sketcher.Constraint("Horizontal", 18),
    Sketcher.Constraint("Vertical", 38),
    Sketcher.Constraint("Horizontal", 58),
    Sketcher.Constraint("Vertical", 78),
    Sketcher.Constraint("Coincident", 8, 3, -1, 1),
    Sketcher.Constraint("Coincident", 28, 3, -1, 1),
    Sketcher.Constraint("Coincident", 48, 3, -1, 1),
    Sketcher.Constraint("Coincident", 68, 3, -1, 1),
    Sketcher.Constraint("Equal", 0, 20),
    Sketcher.Constraint("Equal", 4, 24),
    Sketcher.Constraint("Equal", 8, 28),
    Sketcher.Constraint("Equal", 12, 32),
    Sketcher.Constraint("Equal", 16, 36),
    Sketcher.Constraint("Equal", 20, 40),
    Sketcher.Constraint("Equal", 24, 44),
    Sketcher.Constraint("Equal", 28, 48),
    Sketcher.Constraint("Equal", 32, 52),
    Sketcher.Constraint("Equal", 36, 56),
    Sketcher.Constraint("Equal", 40, 60),
    Sketcher.Constraint("Equal", 44, 64),
    Sketcher.Constraint("Equal", 48, 68),
    Sketcher.Constraint("Equal", 52, 72),
    Sketcher.Constraint("Equal", 56, 76),
    Sketcher.Constraint("Symmetric", 0, 3, 40, 3, -1, 1),
    Sketcher.Constraint("Symmetric", 4, 3, 44, 3, -1, 1),
    Sketcher.Constraint("Symmetric", 12, 3, 52, 3, -1, 1),
    Sketcher.Constraint("Symmetric", 16, 3, 56, 3, -1, 1),
    Sketcher.Constraint("Symmetric", 20, 3, 60, 3, -1, 1),
    Sketcher.Constraint("Symmetric", 24, 3, 64, 3, -1, 1),
    Sketcher.Constraint("Symmetric", 32, 3, 72, 3, -1, 1),
    Sketcher.Constraint("Symmetric", 36, 3, 76, 3, -1, 1),
    Sketcher.Constraint("Symmetric", 1, 2, 41, 2, -1, 1),
    Sketcher.Constraint("Symmetric", 2, 2, 42, 2, -1, 1),
    Sketcher.Constraint("Symmetric", 5, 2, 45, 2, -1, 1),
    Sketcher.Constraint("Symmetric", 6, 2, 46, 2, -1, 1),
    Sketcher.Constraint("Symmetric", 9, 2, 49, 2, -1, 1),
    Sketcher.Constraint("Symmetric", 10, 2, 50, 2, -1, 1),
    Sketcher.Constraint("Symmetric", 13, 2, 53, 2, -1, 1),
    Sketcher.Constraint("Symmetric", 14, 2, 54, 2, -1, 1),
    Sketcher.Constraint("Symmetric", 17, 2, 57, 2, -1, 1),
    Sketcher.Constraint("Symmetric", 21, 2, 61, 2, -1, 1),
    Sketcher.Constraint("Symmetric", 22, 2, 62, 2, -1, 1),
    Sketcher.Constraint("Symmetric", 25, 2, 65, 2, -1, 1),
    Sketcher.Constraint("Symmetric", 26, 2, 66, 2, -1, 1),
    Sketcher.Constraint("Symmetric", 29, 2, 69, 2, -1, 1),
    Sketcher.Constraint("Symmetric", 30, 2, 70, 2, -1, 1),
    Sketcher.Constraint("Symmetric", 33, 2, 73, 2, -1, 1),
    Sketcher.Constraint("Symmetric", 34, 2, 74, 2, -1, 1),
    Sketcher.Constraint("Symmetric", 37, 2, 77, 2, -1, 1),
    Sketcher.Constraint("Symmetric", 16, 2, 19, 2, -2),
    Sketcher.Constraint("Symmetric", 15, 2, 20, 2, -2),
    Sketcher.Constraint("Symmetric", 14, 2, 21, 2, -2),
    Sketcher.Constraint("Symmetric", 13, 2, 22, 2, -2),
    Sketcher.Constraint("Symmetric", 12, 2, 23, 2, -2),
    Sketcher.Constraint("Symmetric", 11, 2, 24, 2, -2),
    Sketcher.Constraint("Symmetric", 10, 2, 25, 2, -2),
    Sketcher.Constraint("Symmetric", 9, 2, 26, 2, -2),
    Sketcher.Constraint("Symmetric", 6, 2, 29, 2, -2),
    Sketcher.Constraint("Symmetric", 5, 2, 30, 2, -2),
    Sketcher.Constraint("Symmetric", 4, 2, 31, 2, -2),
    Sketcher.Constraint("Symmetric", 3, 2, 32, 2, -2),
    Sketcher.Constraint("Symmetric", 2, 2, 33, 2, -2),
    Sketcher.Constraint("Symmetric", 1, 2, 34, 2, -2),
    Sketcher.Constraint("Symmetric", 0, 2, 35, 2, -2),
    Sketcher.Constraint("Symmetric", 39, 2, 76, 2, -2),
    Sketcher.Constraint("Perpendicular", 1, 21),
    Sketcher.Constraint("Perpendicular", 2, 22),
    Sketcher.Constraint("Perpendicular", 3, 23),
    Sketcher.Constraint("Perpendicular", 5, 25),
    Sketcher.Constraint("Perpendicular", 6, 26),
    Sketcher.Constraint("Perpendicular", 7, 27),
    Sketcher.Constraint("Perpendicular", 9, 29),
    Sketcher.Constraint("Perpendicular", 17, 37),
    Sketcher.Constraint("Perpendicular", 19, 39),
    Sketcher.Constraint("Perpendicular", 21, 41),
    Sketcher.Constraint("Perpendicular", 23, 43),
    Sketcher.Constraint("Perpendicular", 25, 45),
    Sketcher.Constraint("Perpendicular", 27, 47),
    Sketcher.Constraint("Perpendicular", 29, 49),
    Sketcher.Constraint("Perpendicular", 31, 51),
    Sketcher.Constraint("Perpendicular", 33, 53),
    Sketcher.Constraint("Perpendicular", 35, 55),
    Sketcher.Constraint("Perpendicular", 37, 57),
    Sketcher.Constraint("Perpendicular", 39, 59),
    Sketcher.Constraint("Perpendicular", 41, 61),
    Sketcher.Constraint("Perpendicular", 43, 63),
    Sketcher.Constraint("Perpendicular", 45, 65),
    Sketcher.Constraint("Perpendicular", 47, 67),
    Sketcher.Constraint("Perpendicular", 49, 69),
    Sketcher.Constraint("Perpendicular", 51, 71),
    Sketcher.Constraint("Perpendicular", 53, 73),
    Sketcher.Constraint("Perpendicular", 55, 75),
    Sketcher.Constraint("Perpendicular", 57, 77),
    Sketcher.Constraint("Perpendicular", 59, 79),
    Sketcher.Constraint("Horizontal", 8, 2, 27, 2),
    Sketcher.Constraint("Horizontal", 56, 2, 59, 2),
    Sketcher.Constraint("Horizontal", 38, 2, 77, 2),
    Sketcher.Constraint("Horizontal", 37, 2, 78, 2),
    Sketcher.Constraint("Equal", 58, 38),
    Sketcher.Constraint("Equal", 1, 3),
    Sketcher.Constraint("Equal", 3, 5),
    Sketcher.Constraint("Equal", 2, 6),
    Sketcher.Constraint("Equal", 5, 7),
    Sketcher.Constraint("Equal", 7, 9),
    Sketcher.Constraint("Equal", 6, 10),
    Sketcher.Constraint("Equal", 9, 11),
    Sketcher.Constraint("Equal", 11, 13),
    Sketcher.Constraint("Equal", 10, 14),
    Sketcher.Constraint("Equal", 13, 15),
    Sketcher.Constraint("Equal", 15, 17),
    Sketcher.Constraint("Equal", 35, 37),
    Sketcher.Constraint("Radius", 8, 12.5),
    Sketcher.Constraint("Angle", 17, Q("116.0001 deg")),
    Sketcher.Constraint("DistanceX", 18, 2, 18, 1, 1.8),
    Sketcher.Constraint("DistanceY", -1, 1, 17, 2, 14.0),
    Sketcher.Constraint("DistanceX", 37, 2, -1, 1, 14.0),
    Sketcher.Constraint("Distance", 2, 1.8),
    Sketcher.Constraint("Angle", 1, Q("44.0008 deg")),
    Sketcher.Constraint("Angle", 2, Q("107.999 deg")),
    Sketcher.Constraint("Angle", 3, Q("171.9994 deg")),
    Sketcher.Constraint("Angle", 6, Q("126.0002 deg")),
    Sketcher.Constraint("Angle", 7, Q("-170.0002 deg")),
    Sketcher.Constraint("Radius", 0, 12.397),
    Sketcher.Constraint("Radius", 4, 12.4008),
    Sketcher.Constraint("Radius", 12, 12.6009),
    Sketcher.Constraint("Radius", 16, 12.6047),
    Sketcher.Constraint("DistanceX", -1, 1, 0, 3, 0.102),
    Sketcher.Constraint("DistanceY", -1, 1, 0, 3, 0.015),
    Sketcher.Constraint("DistanceX", -1, 1, 4, 3, 0.089),
    Sketcher.Constraint("DistanceY", -1, 1, 4, 3, 0.044),
    Sketcher.Constraint("DistanceX", 20, 3, -1, 1, 0.015),
    Sketcher.Constraint("DistanceX", 24, 3, -1, 1, 0.044),
    Sketcher.Constraint("DistanceY", -1, 1, 24, 3, 0.089),
    Sketcher.Constraint("DistanceX", -1, 1, 4, 2, 11.012),
])
sketch4.setExpression("Constraints[191]", "Params.sketch4_radius")
sketch4.setExpression("Constraints[193]", "Params.sketch4_width")
sketch4.setExpression("Constraints[196]", "Params.sketch4_length")
pocket2 = body.newObject("PartDesign::Pocket", "Pocket001")
pocket2.Profile = sketch4
pocket2.Type = "ThroughAll"

doc.recompute()
